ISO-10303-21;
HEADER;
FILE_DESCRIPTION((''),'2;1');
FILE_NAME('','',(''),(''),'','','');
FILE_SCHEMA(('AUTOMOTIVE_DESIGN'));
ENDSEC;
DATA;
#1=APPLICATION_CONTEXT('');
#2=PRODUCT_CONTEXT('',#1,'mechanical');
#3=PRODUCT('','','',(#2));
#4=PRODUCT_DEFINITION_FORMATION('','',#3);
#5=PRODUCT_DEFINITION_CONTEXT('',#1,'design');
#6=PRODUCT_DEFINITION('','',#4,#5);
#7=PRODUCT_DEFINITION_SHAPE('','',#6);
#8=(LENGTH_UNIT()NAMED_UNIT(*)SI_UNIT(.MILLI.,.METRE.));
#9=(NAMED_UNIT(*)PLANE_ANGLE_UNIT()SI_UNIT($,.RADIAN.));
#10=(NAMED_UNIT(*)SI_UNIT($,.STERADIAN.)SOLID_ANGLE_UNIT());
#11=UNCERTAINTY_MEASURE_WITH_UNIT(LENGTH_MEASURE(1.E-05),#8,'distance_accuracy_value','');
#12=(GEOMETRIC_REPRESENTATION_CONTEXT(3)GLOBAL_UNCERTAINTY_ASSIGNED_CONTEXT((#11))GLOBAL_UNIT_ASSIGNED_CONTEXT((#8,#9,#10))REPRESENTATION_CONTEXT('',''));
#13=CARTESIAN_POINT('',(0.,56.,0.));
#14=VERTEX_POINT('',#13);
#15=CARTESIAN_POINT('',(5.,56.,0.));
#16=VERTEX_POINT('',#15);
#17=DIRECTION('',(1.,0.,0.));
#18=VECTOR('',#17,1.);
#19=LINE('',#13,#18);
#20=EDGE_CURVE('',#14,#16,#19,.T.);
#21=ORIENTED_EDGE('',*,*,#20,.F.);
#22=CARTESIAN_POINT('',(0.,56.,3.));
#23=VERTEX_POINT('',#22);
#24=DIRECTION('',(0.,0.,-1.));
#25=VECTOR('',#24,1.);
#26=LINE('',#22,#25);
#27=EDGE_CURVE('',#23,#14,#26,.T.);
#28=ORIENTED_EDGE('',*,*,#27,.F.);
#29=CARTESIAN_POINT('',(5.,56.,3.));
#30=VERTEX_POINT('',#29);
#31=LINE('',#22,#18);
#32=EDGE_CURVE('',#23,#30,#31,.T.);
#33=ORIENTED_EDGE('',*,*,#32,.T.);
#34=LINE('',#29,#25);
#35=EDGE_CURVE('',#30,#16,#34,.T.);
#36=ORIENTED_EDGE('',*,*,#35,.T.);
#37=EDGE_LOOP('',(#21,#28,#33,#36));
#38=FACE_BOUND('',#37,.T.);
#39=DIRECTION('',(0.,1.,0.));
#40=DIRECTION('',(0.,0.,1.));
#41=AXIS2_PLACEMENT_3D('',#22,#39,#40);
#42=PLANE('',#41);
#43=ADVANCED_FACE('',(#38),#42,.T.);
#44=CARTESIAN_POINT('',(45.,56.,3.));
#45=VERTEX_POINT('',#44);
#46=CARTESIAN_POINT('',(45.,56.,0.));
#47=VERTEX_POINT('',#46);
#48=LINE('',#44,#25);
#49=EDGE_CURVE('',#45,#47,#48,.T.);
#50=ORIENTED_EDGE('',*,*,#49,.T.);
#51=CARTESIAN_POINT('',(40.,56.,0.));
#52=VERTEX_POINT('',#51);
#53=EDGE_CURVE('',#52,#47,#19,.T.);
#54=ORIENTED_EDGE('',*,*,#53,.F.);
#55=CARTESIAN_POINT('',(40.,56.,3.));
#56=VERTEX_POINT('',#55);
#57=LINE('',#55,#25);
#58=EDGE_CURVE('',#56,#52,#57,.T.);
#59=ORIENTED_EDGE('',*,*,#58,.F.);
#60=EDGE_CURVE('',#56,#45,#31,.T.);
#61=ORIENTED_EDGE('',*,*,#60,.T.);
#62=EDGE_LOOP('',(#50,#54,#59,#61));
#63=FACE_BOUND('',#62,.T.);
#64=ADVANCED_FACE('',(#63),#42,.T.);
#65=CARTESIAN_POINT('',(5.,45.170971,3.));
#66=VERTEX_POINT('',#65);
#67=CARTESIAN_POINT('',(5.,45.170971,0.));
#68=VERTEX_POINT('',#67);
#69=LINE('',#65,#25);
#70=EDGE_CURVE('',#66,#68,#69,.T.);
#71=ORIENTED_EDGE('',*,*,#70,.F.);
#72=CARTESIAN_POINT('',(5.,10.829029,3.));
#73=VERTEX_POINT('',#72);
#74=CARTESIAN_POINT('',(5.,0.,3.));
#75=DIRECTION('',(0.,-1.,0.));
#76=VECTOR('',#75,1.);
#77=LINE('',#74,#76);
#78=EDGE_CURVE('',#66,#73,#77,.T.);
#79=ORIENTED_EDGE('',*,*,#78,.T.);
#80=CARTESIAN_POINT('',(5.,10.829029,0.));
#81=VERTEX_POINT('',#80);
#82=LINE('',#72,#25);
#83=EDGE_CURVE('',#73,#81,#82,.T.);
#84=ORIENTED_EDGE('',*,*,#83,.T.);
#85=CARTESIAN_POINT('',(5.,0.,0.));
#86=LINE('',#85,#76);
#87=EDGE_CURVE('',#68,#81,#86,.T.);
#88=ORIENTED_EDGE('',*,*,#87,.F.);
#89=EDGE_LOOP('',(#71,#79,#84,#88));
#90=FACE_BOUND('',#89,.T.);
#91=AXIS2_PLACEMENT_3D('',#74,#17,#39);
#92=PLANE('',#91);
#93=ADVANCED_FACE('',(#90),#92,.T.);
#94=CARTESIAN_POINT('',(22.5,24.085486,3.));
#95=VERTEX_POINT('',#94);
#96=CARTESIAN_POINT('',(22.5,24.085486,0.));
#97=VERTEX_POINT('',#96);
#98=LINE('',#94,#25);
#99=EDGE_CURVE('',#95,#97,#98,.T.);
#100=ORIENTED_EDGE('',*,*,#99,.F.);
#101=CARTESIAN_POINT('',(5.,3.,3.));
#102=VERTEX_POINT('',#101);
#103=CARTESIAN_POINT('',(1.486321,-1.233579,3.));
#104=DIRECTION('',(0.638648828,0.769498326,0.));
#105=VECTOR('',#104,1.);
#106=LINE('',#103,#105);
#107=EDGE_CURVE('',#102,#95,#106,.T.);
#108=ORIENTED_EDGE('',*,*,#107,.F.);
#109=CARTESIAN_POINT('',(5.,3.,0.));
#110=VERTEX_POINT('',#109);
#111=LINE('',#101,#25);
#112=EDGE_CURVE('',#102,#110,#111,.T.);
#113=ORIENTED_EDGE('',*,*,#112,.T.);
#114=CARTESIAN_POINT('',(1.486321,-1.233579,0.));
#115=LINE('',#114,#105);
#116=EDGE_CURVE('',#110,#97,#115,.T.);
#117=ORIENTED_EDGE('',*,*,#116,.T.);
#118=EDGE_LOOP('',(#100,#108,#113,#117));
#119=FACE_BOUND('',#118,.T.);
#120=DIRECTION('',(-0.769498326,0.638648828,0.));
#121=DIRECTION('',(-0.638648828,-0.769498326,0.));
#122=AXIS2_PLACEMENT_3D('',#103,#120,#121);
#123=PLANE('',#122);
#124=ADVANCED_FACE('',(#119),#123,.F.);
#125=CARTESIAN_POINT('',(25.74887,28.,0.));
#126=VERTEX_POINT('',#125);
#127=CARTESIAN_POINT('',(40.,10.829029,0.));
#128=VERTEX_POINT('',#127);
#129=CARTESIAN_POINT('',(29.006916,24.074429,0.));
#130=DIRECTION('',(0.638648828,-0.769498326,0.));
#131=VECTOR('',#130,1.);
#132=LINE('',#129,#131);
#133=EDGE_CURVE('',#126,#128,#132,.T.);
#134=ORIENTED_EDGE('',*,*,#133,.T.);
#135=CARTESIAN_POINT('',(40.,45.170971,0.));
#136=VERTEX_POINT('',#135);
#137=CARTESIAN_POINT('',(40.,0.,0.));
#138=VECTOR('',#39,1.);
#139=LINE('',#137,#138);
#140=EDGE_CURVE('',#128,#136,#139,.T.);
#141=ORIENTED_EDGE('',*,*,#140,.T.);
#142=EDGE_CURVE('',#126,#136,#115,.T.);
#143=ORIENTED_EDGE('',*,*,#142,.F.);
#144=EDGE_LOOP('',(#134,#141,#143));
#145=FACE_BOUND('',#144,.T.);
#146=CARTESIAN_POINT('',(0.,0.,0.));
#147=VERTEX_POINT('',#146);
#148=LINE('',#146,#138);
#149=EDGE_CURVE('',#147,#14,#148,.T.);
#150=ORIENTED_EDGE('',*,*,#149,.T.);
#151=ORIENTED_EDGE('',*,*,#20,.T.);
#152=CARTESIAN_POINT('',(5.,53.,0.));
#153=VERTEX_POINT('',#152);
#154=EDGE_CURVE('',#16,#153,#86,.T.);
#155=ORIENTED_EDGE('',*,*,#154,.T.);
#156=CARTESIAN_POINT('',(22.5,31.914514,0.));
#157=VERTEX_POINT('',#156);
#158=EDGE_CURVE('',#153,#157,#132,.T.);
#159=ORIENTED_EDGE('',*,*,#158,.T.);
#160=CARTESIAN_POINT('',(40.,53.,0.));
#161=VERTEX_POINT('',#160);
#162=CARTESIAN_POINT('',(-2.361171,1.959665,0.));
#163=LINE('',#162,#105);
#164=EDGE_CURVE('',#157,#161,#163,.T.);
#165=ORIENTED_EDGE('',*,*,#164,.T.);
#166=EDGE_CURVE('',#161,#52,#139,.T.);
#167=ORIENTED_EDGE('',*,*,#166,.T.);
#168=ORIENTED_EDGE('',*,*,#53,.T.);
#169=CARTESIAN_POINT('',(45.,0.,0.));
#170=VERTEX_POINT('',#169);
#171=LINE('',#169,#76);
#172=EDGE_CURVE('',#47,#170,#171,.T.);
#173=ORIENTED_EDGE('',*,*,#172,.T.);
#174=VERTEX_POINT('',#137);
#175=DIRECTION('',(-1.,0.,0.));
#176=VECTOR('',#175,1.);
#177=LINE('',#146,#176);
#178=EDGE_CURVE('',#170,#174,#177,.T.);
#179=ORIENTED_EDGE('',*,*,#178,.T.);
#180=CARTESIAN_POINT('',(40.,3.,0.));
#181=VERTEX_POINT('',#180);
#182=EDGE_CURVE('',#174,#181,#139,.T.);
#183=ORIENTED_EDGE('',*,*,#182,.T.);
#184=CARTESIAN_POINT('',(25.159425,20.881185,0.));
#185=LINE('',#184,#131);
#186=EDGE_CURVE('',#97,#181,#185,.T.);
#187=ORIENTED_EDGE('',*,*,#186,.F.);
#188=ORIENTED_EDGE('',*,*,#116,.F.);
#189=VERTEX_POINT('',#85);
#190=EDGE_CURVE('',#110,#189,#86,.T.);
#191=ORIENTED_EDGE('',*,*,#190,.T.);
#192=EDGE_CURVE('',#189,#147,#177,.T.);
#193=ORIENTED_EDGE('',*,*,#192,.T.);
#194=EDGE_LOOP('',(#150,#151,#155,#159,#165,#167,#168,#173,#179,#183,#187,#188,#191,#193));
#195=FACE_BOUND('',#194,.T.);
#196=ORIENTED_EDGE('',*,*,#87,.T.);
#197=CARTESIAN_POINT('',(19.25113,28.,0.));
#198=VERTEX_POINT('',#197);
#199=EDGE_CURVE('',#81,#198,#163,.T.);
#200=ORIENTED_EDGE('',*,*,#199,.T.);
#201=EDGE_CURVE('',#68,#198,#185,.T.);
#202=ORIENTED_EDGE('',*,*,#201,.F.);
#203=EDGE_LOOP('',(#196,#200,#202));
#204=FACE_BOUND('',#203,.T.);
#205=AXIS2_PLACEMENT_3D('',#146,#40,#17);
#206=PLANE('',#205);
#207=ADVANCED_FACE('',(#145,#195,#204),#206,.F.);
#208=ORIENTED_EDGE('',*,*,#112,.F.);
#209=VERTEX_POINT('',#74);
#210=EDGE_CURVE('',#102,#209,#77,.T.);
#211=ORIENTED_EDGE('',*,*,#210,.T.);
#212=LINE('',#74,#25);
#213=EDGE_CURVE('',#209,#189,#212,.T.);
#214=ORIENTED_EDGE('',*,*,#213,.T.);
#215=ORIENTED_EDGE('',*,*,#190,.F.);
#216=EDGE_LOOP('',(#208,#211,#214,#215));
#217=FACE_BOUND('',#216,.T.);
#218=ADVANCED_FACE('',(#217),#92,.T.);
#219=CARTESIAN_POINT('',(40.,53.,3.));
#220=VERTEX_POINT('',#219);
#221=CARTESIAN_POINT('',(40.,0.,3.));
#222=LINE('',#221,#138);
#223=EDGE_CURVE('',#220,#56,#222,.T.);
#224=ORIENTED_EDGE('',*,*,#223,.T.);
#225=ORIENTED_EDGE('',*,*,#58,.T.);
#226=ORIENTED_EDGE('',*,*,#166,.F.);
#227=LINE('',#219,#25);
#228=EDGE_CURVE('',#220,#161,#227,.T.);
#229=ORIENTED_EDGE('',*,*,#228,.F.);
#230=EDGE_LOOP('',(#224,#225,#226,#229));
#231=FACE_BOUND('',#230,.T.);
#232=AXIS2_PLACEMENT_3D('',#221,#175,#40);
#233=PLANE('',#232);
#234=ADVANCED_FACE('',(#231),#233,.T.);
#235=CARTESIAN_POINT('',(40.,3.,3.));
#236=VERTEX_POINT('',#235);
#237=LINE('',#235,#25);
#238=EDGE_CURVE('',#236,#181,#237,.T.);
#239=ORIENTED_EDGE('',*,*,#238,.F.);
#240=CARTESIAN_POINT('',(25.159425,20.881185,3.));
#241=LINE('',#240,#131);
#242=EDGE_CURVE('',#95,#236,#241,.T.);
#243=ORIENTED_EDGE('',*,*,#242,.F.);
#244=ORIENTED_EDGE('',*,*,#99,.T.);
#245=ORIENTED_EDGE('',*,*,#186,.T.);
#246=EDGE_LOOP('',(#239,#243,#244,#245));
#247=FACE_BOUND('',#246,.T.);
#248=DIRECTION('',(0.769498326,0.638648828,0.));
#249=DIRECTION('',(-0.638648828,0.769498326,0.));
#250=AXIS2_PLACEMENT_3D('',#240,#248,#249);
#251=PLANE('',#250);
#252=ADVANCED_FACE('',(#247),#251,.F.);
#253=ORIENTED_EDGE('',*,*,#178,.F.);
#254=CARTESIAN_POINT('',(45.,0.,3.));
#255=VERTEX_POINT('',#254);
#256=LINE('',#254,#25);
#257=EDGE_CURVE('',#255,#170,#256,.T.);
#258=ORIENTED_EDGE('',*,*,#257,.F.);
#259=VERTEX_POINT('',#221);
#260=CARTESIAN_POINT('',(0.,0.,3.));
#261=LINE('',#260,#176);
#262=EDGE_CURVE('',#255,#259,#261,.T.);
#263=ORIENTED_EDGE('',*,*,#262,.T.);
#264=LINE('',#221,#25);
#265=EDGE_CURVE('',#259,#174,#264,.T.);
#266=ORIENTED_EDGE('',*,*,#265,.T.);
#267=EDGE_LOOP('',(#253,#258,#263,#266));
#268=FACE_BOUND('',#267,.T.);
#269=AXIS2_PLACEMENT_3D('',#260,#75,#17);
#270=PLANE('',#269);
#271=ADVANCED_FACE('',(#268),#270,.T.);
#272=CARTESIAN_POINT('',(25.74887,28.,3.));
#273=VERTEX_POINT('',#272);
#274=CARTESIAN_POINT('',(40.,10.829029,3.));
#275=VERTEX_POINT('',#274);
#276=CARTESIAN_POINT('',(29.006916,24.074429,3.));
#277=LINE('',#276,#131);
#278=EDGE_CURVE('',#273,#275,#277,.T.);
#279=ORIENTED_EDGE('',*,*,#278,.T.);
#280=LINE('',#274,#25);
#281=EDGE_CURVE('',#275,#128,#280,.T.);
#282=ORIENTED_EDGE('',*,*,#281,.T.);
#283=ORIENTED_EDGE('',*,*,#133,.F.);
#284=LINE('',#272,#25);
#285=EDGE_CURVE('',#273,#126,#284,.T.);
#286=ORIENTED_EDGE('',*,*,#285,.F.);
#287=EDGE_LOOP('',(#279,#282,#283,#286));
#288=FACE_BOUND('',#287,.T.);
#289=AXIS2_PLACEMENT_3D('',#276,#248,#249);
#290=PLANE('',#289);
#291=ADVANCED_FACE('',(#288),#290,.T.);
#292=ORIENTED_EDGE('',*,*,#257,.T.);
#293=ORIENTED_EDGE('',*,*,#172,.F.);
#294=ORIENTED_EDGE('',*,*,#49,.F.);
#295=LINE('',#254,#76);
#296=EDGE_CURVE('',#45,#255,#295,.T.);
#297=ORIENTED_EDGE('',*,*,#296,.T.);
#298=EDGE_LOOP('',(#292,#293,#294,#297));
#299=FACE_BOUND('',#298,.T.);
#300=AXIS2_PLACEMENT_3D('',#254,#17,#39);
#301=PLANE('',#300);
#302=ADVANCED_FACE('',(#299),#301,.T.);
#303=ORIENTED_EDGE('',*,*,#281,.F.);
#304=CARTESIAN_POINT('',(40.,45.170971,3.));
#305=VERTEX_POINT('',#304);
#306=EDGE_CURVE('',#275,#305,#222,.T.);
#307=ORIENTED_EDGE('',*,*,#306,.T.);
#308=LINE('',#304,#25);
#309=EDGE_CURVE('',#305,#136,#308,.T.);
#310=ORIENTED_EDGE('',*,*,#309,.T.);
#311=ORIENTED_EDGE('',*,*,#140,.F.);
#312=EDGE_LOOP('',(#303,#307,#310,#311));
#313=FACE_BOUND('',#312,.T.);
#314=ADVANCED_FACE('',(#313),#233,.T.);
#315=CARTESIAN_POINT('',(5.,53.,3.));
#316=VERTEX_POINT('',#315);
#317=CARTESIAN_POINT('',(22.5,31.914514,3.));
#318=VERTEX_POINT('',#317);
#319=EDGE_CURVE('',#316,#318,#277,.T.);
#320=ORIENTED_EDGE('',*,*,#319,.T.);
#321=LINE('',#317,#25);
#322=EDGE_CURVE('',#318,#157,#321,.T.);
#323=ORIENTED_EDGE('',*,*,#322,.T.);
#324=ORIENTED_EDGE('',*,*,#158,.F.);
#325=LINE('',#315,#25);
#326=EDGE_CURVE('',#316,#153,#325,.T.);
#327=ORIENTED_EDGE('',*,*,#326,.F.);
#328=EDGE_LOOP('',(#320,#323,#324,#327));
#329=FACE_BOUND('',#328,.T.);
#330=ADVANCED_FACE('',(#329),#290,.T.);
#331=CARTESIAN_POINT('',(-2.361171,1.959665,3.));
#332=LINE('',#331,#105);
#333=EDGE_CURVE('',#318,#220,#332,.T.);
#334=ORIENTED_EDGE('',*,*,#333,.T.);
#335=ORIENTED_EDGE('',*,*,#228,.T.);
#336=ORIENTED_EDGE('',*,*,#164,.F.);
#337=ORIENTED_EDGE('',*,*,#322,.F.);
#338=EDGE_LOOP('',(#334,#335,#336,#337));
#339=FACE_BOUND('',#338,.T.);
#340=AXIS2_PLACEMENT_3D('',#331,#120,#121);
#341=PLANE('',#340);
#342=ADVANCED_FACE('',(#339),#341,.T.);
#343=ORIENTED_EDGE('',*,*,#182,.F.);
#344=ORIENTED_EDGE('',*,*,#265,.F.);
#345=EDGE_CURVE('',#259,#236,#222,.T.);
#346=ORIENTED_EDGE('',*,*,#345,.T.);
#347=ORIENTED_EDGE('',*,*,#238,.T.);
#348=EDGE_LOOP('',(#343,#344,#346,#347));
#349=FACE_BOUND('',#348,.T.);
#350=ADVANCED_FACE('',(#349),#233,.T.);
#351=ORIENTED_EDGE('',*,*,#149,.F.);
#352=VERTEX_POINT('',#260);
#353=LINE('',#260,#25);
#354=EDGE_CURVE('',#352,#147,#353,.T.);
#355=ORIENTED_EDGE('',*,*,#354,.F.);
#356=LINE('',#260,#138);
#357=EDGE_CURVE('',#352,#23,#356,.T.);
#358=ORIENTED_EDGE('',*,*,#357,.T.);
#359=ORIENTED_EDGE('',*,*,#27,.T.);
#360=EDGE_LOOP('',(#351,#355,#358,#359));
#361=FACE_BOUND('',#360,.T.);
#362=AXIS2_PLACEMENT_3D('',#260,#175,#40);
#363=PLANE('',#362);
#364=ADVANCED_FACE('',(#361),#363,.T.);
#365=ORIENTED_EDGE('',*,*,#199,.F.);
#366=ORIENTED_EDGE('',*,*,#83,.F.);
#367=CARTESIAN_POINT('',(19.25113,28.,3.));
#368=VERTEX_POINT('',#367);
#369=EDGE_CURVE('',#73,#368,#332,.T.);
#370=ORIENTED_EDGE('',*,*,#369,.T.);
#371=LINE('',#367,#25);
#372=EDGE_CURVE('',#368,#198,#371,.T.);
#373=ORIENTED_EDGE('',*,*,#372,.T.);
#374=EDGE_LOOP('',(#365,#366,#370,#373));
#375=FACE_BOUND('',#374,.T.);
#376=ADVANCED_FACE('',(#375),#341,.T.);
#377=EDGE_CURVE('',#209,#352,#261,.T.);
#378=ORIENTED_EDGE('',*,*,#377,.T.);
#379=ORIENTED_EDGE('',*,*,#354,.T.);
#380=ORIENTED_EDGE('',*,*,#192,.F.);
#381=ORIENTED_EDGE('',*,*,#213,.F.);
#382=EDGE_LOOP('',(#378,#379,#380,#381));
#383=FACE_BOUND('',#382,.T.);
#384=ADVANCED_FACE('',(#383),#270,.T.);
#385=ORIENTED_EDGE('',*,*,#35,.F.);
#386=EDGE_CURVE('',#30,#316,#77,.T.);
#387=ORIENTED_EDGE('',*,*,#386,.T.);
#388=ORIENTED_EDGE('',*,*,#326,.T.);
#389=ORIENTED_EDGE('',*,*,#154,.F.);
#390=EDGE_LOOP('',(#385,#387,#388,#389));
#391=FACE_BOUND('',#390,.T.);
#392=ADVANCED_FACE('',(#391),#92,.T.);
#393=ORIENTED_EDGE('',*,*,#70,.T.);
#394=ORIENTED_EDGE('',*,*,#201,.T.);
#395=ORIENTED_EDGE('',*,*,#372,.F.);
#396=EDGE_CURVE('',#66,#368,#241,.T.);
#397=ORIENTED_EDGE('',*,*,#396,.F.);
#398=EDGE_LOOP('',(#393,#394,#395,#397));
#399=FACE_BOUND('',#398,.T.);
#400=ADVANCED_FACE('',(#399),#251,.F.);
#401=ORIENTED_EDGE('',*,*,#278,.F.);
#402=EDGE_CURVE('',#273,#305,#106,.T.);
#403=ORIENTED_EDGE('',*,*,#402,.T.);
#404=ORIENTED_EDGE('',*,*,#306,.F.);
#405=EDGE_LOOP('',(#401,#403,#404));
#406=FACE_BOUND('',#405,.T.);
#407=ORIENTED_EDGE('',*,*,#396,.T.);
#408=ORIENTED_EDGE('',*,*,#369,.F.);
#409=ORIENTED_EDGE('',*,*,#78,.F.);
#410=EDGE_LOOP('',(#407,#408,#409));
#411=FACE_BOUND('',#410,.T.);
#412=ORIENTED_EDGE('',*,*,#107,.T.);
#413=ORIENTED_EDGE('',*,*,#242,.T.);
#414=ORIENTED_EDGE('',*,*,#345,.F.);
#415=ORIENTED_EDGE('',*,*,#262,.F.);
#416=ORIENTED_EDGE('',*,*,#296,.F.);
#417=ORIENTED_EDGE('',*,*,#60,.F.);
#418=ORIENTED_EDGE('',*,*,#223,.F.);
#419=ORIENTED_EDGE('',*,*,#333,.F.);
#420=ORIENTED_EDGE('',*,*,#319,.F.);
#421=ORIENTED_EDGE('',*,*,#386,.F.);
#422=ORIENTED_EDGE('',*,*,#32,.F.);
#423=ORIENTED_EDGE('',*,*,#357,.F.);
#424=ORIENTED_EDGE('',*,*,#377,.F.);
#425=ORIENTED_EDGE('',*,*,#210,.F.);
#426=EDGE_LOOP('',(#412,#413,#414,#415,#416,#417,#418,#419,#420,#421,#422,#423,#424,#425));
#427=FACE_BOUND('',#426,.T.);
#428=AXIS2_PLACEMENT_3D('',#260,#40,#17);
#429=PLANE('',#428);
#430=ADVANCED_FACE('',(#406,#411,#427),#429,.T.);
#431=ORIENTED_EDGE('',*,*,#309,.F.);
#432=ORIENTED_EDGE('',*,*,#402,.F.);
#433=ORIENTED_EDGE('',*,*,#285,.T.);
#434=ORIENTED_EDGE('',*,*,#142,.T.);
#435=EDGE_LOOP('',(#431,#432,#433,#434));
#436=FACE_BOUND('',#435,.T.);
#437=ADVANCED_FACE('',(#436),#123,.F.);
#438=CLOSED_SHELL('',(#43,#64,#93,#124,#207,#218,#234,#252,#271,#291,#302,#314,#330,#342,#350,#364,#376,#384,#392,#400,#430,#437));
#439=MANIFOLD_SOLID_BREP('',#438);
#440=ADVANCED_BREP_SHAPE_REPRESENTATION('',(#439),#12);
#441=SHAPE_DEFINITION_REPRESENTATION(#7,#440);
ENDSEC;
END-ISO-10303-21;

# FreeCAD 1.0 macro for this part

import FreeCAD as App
import Part
import Sketcher
from FreeCAD import Vector


def add_polygon(sketch, points):
    """Adds a closed chain of lines whose ends are joined by coincident constraints."""
    first, n = sketch.GeometryCount, len(points)
    for a, b in zip(points, points[1:] + points[:1]):
        sketch.addGeometry(Part.LineSegment(App.Vector(*a, 0), App.Vector(*b, 0)), False)
    for i in range(n):
        sketch.addConstraint(Sketcher.Constraint("Coincident", first + i, 2, first + (i + 1) % n, 1))

doc = App.newDocument("Part")
body = doc.addObject("PartDesign::Body", "Body")

sketch1 = body.newObject("Sketcher::SketchObject", "Sketch")
sketch1.AttachmentSupport = (doc.getObject("XY_Plane"), [""])
sketch1.MapMode = "FlatFace"
add_polygon(sketch1, [(40, 53), (22.5, 31.9), (5, 53), (5, 56), (0, 56), (0, 0), (5, 0), (5, 3), (22.5, 24.1), (40, 3), (40, 0), (45, 0), (45, 56), (40, 56)])
add_polygon(sketch1, [(5, 45.2), (19.3, 28), (5, 10.8)])
add_polygon(sketch1, [(40, 10.8), (25.7, 28), (40, 45.2)])
sketch1.addConstraint([
    Sketcher.Constraint("Vertical", 2),
    Sketcher.Constraint("Horizontal", 3),
    Sketcher.Constraint("Vertical", 4),
    Sketcher.Constraint("Horizontal", 5),
    Sketcher.Constraint("Vertical", 6),
    Sketcher.Constraint("Vertical", 9),
    Sketcher.Constraint("Horizontal", 10),
    Sketcher.Constraint("Vertical", 11),
    Sketcher.Constraint("Horizontal", 12),
    Sketcher.Constraint("Vertical", 13),
    Sketcher.Constraint("Vertical", 16),
    Sketcher.Constraint("Vertical", 19),
    Sketcher.Constraint("Coincident", 4, 2, -1, 1),
    Sketcher.Constraint("PointOnObject", 9, 2, -1),
    Sketcher.Constraint("Parallel", 0, 7),
    Sketcher.Constraint("Parallel", 1, 8),
    Sketcher.Constraint("Parallel", 8, 14),
    Sketcher.Constraint("Parallel", 7, 15),
    Sketcher.Constraint("Parallel", 14, 17),
    Sketcher.Constraint("Parallel", 15, 18),
    Sketcher.Constraint("Horizontal", 6, 2, 8, 2),
    Sketcher.Constraint("Horizontal", 3, 2, 11, 2),
    Sketcher.Constraint("Horizontal", 1, 2, 13, 2),
    Sketcher.Constraint("Horizontal", 14, 2, 17, 2),
    Sketcher.Constraint("Horizontal", 16, 2, 18, 2),
    Sketcher.Constraint("Horizontal", 15, 2, 19, 2),
    Sketcher.Constraint("Vertical", 2, 2, 5, 2),
    Sketcher.Constraint("Vertical", 0, 2, 7, 2),
    Sketcher.Constraint("Vertical", 6, 2, 15, 2),
    Sketcher.Constraint("Vertical", 13, 2, 18, 2),
    Sketcher.Constraint("Equal", 5, 10),
    Sketcher.Constraint("Equal", 2, 6),
    Sketcher.Constraint("DistanceX", 3, 2, 3, 1, 5.0),
    Sketcher.Constraint("DistanceY", 2, 1, 2, 2, 3.0),
    Sketcher.Constraint("DistanceY", 4, 2, 4, 1, 56.0),
    Sketcher.Constraint("DistanceX", -1, 1, 8, 2, 40.0),
    Sketcher.Constraint("DistanceY", -1, 1, 14, 2, 28.0),
    Sketcher.Constraint("Distance", 0, 27.4016),
    Sketcher.Constraint("Distance", 14, 22.314501),
])
pad1 = body.newObject("PartDesign::Pad", "Pad")
pad1.Profile = sketch1
pad1.Length = 3

doc.recompute()
